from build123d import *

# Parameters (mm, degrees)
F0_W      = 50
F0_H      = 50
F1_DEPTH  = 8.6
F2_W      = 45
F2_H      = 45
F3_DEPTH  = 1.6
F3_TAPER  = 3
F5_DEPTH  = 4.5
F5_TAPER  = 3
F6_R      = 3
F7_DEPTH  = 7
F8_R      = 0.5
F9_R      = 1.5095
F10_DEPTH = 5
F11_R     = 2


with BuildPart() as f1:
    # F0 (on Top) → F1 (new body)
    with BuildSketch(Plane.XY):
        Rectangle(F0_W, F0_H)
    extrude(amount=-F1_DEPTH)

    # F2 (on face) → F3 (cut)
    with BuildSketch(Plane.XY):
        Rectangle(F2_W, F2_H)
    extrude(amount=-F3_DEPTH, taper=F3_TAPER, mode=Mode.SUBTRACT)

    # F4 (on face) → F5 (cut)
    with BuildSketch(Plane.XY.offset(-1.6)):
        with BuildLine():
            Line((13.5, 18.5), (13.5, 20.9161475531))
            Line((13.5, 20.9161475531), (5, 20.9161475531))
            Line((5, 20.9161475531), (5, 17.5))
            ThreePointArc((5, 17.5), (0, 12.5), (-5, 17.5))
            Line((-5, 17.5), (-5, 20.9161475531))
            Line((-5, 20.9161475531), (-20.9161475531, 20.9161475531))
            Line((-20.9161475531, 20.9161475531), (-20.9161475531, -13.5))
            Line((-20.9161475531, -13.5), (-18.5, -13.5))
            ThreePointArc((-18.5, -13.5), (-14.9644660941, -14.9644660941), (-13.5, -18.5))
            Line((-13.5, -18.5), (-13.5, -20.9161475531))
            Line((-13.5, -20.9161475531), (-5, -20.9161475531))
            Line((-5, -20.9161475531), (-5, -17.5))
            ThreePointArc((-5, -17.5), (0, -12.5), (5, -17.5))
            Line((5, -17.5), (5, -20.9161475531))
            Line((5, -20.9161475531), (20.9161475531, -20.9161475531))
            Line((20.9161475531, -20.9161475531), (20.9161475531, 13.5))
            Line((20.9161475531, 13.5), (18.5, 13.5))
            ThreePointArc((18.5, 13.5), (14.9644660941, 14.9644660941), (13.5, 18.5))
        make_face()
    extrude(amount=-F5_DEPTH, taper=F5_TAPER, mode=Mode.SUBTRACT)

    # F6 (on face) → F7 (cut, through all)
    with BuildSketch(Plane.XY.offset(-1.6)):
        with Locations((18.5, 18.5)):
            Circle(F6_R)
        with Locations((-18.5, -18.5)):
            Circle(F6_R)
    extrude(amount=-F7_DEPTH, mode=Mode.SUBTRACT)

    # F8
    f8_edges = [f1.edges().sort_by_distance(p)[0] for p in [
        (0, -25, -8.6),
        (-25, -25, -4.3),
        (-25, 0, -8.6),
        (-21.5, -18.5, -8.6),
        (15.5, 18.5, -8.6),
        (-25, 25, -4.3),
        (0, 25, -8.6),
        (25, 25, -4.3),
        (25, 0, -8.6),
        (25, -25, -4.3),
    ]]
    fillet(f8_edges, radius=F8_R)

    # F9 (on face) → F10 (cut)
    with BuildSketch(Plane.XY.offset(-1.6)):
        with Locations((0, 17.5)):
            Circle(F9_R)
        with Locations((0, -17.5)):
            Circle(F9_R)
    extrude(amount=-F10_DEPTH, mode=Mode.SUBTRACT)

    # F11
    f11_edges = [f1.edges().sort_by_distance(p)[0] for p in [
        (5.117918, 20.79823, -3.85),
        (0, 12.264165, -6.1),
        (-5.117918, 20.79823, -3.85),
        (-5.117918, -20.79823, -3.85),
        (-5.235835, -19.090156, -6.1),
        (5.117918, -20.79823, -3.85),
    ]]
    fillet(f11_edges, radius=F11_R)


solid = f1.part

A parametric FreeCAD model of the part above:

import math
import FreeCAD as App
import Part
import Sketcher
from FreeCAD import Vector
Q = App.Units.Quantity


def edges_at(feature, points):
    """Names of the edges that pass closest to the given points."""
    edges = feature.Shape.Edges
    near = lambda p: min(range(len(edges)), key=lambda i: edges[i].distToShape(Part.Vertex(*p))[0])
    return sorted({f"Edge{near(p) + 1}" for p in points})

doc = App.newDocument("Part")
body = doc.addObject("PartDesign::Body", "Body")

# Sketch on XY plane
sketch1 = body.newObject("Sketcher::SketchObject", "Sketch")
sketch1.AttachmentSupport = (doc.getObject("XY_Plane"), [""])
sketch1.MapMode = "FlatFace"
sketch1.addGeometry([
    Part.LineSegment(Vector(-25, 25, 0), Vector(-25, -25, 0)),
    Part.LineSegment(Vector(-25, -25, 0), Vector(25, -25, 0)),
    Part.LineSegment(Vector(25, -25, 0), Vector(25, 25, 0)),
    Part.LineSegment(Vector(25, 25, 0), Vector(-25, 25, 0)),
], False)
sketch1.addConstraint([
    Sketcher.Constraint("Coincident", 0, 2, 1, 1),
    Sketcher.Constraint("Coincident", 1, 2, 2, 1),
    Sketcher.Constraint("Coincident", 2, 2, 3, 1),
    Sketcher.Constraint("Coincident", 3, 2, 0, 1),
    Sketcher.Constraint("Vertical", 0),
    Sketcher.Constraint("Horizontal", 1),
    Sketcher.Constraint("Vertical", 2),
    Sketcher.Constraint("Horizontal", 3),
    Sketcher.Constraint("Symmetric", 0, 2, 2, 2, -1, 1),
    Sketcher.Constraint("Equal", 3, 0),
    Sketcher.Constraint("DistanceX", 1, 1, 1, 2, Q("50 mm")),
])
pad1 = body.newObject("PartDesign::Pad", "Pad")
pad1.Profile = sketch1
pad1.Length = 8.6
pad1.Reversed = True

# Sketch on XY plane
sketch2 = body.newObject("Sketcher::SketchObject", "Sketch001")
sketch2.AttachmentSupport = (doc.getObject("XY_Plane"), [""])
sketch2.MapMode = "FlatFace"
sketch2.addGeometry([
    Part.LineSegment(Vector(-22, 22, 0), Vector(-22, -22, 0)),
    Part.LineSegment(Vector(-22, -22, 0), Vector(22, -22, 0)),
    Part.LineSegment(Vector(22, -22, 0), Vector(22, 22, 0)),
    Part.LineSegment(Vector(22, 22, 0), Vector(-22, 22, 0)),
], False)
sketch2.addConstraint([
    Sketcher.Constraint("Coincident", 0, 2, 1, 1),
    Sketcher.Constraint("Coincident", 1, 2, 2, 1),
    Sketcher.Constraint("Coincident", 2, 2, 3, 1),
    Sketcher.Constraint("Coincident", 3, 2, 0, 1),
    Sketcher.Constraint("Vertical", 0),
    Sketcher.Constraint("Horizontal", 1),
    Sketcher.Constraint("Vertical", 2),
    Sketcher.Constraint("Horizontal", 3),
    Sketcher.Constraint("Symmetric", 0, 2, 2, 2, -1, 1),
    Sketcher.Constraint("Equal", 3, 0),
    Sketcher.Constraint("DistanceX", 1, 1, 1, 2, Q("45 mm")),
])
pocket1 = body.newObject("PartDesign::Pocket", "Pocket")
pocket1.Profile = sketch2
pocket1.Length = 1.6
pocket1.TaperAngle = -3

# Sketch on XY plane
sketch3 = body.newObject("Sketcher::SketchObject", "Sketch002")
sketch3.AttachmentSupport = (doc.getObject("XY_Plane"), [""])
sketch3.MapMode = "FlatFace"
sketch3.AttachmentOffset = App.Placement(Vector(0, 0, -1.6), App.Rotation())
sketch3.addGeometry([
    Part.LineSegment(Vector(13.5, 18.5, 0), Vector(13.5, 20.9, 0)),  # 0
    Part.LineSegment(Vector(13.5, 20.9, 0), Vector(5, 20.9, 0)),  # 1
    Part.LineSegment(Vector(5, 20.9, 0), Vector(5, 17.5, 0)),  # 2
    Part.ArcOfCircle(Part.Circle(Vector(0, 17.5, 0), Vector(0, 0, 1), 5), math.radians(180), math.radians(360)),  # 3
    Part.LineSegment(Vector(-5, 17.5, 0), Vector(-5, 20.9, 0)),  # 4
    Part.LineSegment(Vector(-5, 20.9, 0), Vector(-20.9, 20.9, 0)),  # 5
    Part.LineSegment(Vector(-20.9, 20.9, 0), Vector(-20.9, -13.5, 0)),  # 6
    Part.LineSegment(Vector(-20.9, -13.5, 0), Vector(-18.5, -13.5, 0)),  # 7
    Part.ArcOfCircle(Part.Circle(Vector(-18.5, -18.5, 0), Vector(0, 0, 1), 5), math.radians(0), math.radians(90)),  # 8
    Part.LineSegment(Vector(-13.5, -18.5, 0), Vector(-13.5, -20.9, 0)),  # 9
    Part.LineSegment(Vector(-13.5, -20.9, 0), Vector(-5, -20.9, 0)),  # 10
    Part.LineSegment(Vector(-5, -20.9, 0), Vector(-5, -17.5, 0)),  # 11
    Part.ArcOfCircle(Part.Circle(Vector(0, -17.5, 0), Vector(0, 0, 1), 5), math.radians(0), math.radians(180)),  # 12
    Part.LineSegment(Vector(5, -17.5, 0), Vector(5, -20.9, 0)),  # 13
    Part.LineSegment(Vector(5, -20.9, 0), Vector(20.9, -20.9, 0)),  # 14
    Part.LineSegment(Vector(20.9, -20.9, 0), Vector(20.9, 13.5, 0)),  # 15
    Part.LineSegment(Vector(20.9, 13.5, 0), Vector(18.5, 13.5, 0)),  # 16
    Part.ArcOfCircle(Part.Circle(Vector(18.5, 18.5, 0), Vector(0, 0, 1), 5), math.radians(180), math.radians(270)),  # 17
], False)
sketch3.addConstraint([
    Sketcher.Constraint("Coincident", 0, 2, 1, 1),
    Sketcher.Constraint("Coincident", 1, 2, 2, 1),
    Sketcher.Constraint("Tangent", 2, 2, 3, 2),
    Sketcher.Constraint("Tangent", 3, 1, 4, 1),
    Sketcher.Constraint("Coincident", 4, 2, 5, 1),
    Sketcher.Constraint("Coincident", 5, 2, 6, 1),
    Sketcher.Constraint("Coincident", 6, 2, 7, 1),
    Sketcher.Constraint("Tangent", 7, 2, 8, 2),
    Sketcher.Constraint("Tangent", 8, 1, 9, 1),
    Sketcher.Constraint("Coincident", 9, 2, 10, 1),
    Sketcher.Constraint("Coincident", 10, 2, 11, 1),
    Sketcher.Constraint("Tangent", 11, 2, 12, 2),
    Sketcher.Constraint("Tangent", 12, 1, 13, 1),
    Sketcher.Constraint("Coincident", 13, 2, 14, 1),
    Sketcher.Constraint("Coincident", 14, 2, 15, 1),
    Sketcher.Constraint("Coincident", 15, 2, 16, 1),
    Sketcher.Constraint("Tangent", 16, 2, 17, 2),
    Sketcher.Constraint("Tangent", 17, 1, 0, 1),
    Sketcher.Constraint("Vertical", 0),
    Sketcher.Constraint("Horizontal", 1),
    Sketcher.Constraint("Vertical", 2),
    Sketcher.Constraint("Vertical", 4),
    Sketcher.Constraint("Horizontal", 5),
    Sketcher.Constraint("Vertical", 6),
    Sketcher.Constraint("Horizontal", 7),
    Sketcher.Constraint("Vertical", 9),
    Sketcher.Constraint("Horizontal", 10),
    Sketcher.Constraint("Vertical", 11),
    Sketcher.Constraint("Vertical", 13),
    Sketcher.Constraint("Horizontal", 14),
    Sketcher.Constraint("Vertical", 15),
    Sketcher.Constraint("Horizontal", 16),
    Sketcher.Constraint("Equal", 3, 8),
    Sketcher.Constraint("Equal", 8, 12),
    Sketcher.Constraint("Equal", 12, 17),
    Sketcher.Constraint("Symmetric", 3, 3, 12, 3, -1, 1),
    Sketcher.Constraint("Symmetric", 8, 3, 17, 3, -1, 1),
    Sketcher.Constraint("Symmetric", 5, 2, 14, 2, -1, 1),
    Sketcher.Constraint("Symmetric", 1, 2, 4, 2, -2),
    Sketcher.Constraint("Horizontal", 10, 2, 13, 2),
    Sketcher.Constraint("Equal", 16, 0),
    Sketcher.Constraint("Radius", 3, Q("5 mm")),
    Sketcher.Constraint("DistanceX", 1, 2, 1, 1, Q("8.5 mm")),
    Sketcher.Constraint("DistanceY", 8, 3, 3, 3, Q("36 mm")),
    Sketcher.Constraint("DistanceY", 8, 3, 12, 3, Q("1 mm")),
    Sketcher.Constraint("DistanceX", 5, 2, 5, 1, Q("15.916148 mm")),
])
pocket2 = body.newObject("PartDesign::Pocket", "Pocket001")
pocket2.Profile = sketch3
pocket2.Length = 4.5
pocket2.TaperAngle = -3

# Sketch on XY plane
sketch4 = body.newObject("Sketcher::SketchObject", "Sketch003")
sketch4.AttachmentSupport = (doc.getObject("XY_Plane"), [""])
sketch4.MapMode = "FlatFace"
sketch4.AttachmentOffset = App.Placement(Vector(0, 0, -1.6), App.Rotation())
sketch4.addGeometry([
    Part.Circle(Vector(18.5, 18.5, 0), Vector(0, 0, 1), 3),
    Part.Circle(Vector(-18.5, -18.5, 0), Vector(0, 0, 1), 3),
], False)
sketch4.addConstraint([
    Sketcher.Constraint("Equal", 0, 1),
    Sketcher.Constraint("Symmetric", 0, 3, 1, 3, -1, 1),
    Sketcher.Constraint("Diameter", 0, Q("6 mm")),
    Sketcher.Constraint("DistanceX", 1, 3, 0, 3, Q("37 mm")),
    Sketcher.Constraint("DistanceY", 1, 3, 0, 3, Q("37 mm")),
])
pocket3 = body.newObject("PartDesign::Pocket", "Pocket002")
pocket3.Profile = sketch4
pocket3.Type = "ThroughAll"
doc.recompute()

fillet = body.newObject("PartDesign::Fillet", "Fillet")
fillet.Base = (pocket3, edges_at(pocket3, [
    (0, -25, -8.6),
    (-25, -25, -4.3),
    (-25, 0, -8.6),
    (-21.5, -18.5, -8.6),
    (15.5, 18.5, -8.6),
    (-25, 25, -4.3),
    (0, 25, -8.6),
    (25, 25, -4.3),
    (25, 0, -8.6),
    (25, -25, -4.3),
]))
fillet.Radius = 0.5

# Sketch on XY plane
sketch5 = body.newObject("Sketcher::SketchObject", "Sketch004")
sketch5.AttachmentSupport = (doc.getObject("XY_Plane"), [""])
sketch5.MapMode = "FlatFace"
sketch5.AttachmentOffset = App.Placement(Vector(0, 0, -1.6), App.Rotation())
sketch5.addGeometry([
    Part.Circle(Vector(0, 17.5, 0), Vector(0, 0, 1), 1.5),
    Part.Circle(Vector(0, -17.5, 0), Vector(0, 0, 1), 1.5),
], False)
sketch5.addConstraint([
    Sketcher.Constraint("Equal", 0, 1),
    Sketcher.Constraint("Symmetric", 0, 3, 1, 3, -1, 1),
    Sketcher.Constraint("PointOnObject", 0, 3, -2),
    Sketcher.Constraint("Diameter", 0, Q("3.019 mm")),
    Sketcher.Constraint("DistanceY", 1, 3, 0, 3, Q("35 mm")),
])
pocket4 = body.newObject("PartDesign::Pocket", "Pocket003")
pocket4.Profile = sketch5
pocket4.Length = 5
doc.recompute()

fillet2 = body.newObject("PartDesign::Fillet", "Fillet001")
fillet2.Base = (pocket4, edges_at(pocket4, [
    (5.118, 20.798, -3.85),
    (0, 12.264, -6.1),
    (-5.118, 20.798, -3.85),
    (-5.118, -20.798, -3.85),
    (-5.236, -19.09, -6.1),
    (5.118, -20.798, -3.85),
]))
fillet2.Radius = 2

doc.recompute()
